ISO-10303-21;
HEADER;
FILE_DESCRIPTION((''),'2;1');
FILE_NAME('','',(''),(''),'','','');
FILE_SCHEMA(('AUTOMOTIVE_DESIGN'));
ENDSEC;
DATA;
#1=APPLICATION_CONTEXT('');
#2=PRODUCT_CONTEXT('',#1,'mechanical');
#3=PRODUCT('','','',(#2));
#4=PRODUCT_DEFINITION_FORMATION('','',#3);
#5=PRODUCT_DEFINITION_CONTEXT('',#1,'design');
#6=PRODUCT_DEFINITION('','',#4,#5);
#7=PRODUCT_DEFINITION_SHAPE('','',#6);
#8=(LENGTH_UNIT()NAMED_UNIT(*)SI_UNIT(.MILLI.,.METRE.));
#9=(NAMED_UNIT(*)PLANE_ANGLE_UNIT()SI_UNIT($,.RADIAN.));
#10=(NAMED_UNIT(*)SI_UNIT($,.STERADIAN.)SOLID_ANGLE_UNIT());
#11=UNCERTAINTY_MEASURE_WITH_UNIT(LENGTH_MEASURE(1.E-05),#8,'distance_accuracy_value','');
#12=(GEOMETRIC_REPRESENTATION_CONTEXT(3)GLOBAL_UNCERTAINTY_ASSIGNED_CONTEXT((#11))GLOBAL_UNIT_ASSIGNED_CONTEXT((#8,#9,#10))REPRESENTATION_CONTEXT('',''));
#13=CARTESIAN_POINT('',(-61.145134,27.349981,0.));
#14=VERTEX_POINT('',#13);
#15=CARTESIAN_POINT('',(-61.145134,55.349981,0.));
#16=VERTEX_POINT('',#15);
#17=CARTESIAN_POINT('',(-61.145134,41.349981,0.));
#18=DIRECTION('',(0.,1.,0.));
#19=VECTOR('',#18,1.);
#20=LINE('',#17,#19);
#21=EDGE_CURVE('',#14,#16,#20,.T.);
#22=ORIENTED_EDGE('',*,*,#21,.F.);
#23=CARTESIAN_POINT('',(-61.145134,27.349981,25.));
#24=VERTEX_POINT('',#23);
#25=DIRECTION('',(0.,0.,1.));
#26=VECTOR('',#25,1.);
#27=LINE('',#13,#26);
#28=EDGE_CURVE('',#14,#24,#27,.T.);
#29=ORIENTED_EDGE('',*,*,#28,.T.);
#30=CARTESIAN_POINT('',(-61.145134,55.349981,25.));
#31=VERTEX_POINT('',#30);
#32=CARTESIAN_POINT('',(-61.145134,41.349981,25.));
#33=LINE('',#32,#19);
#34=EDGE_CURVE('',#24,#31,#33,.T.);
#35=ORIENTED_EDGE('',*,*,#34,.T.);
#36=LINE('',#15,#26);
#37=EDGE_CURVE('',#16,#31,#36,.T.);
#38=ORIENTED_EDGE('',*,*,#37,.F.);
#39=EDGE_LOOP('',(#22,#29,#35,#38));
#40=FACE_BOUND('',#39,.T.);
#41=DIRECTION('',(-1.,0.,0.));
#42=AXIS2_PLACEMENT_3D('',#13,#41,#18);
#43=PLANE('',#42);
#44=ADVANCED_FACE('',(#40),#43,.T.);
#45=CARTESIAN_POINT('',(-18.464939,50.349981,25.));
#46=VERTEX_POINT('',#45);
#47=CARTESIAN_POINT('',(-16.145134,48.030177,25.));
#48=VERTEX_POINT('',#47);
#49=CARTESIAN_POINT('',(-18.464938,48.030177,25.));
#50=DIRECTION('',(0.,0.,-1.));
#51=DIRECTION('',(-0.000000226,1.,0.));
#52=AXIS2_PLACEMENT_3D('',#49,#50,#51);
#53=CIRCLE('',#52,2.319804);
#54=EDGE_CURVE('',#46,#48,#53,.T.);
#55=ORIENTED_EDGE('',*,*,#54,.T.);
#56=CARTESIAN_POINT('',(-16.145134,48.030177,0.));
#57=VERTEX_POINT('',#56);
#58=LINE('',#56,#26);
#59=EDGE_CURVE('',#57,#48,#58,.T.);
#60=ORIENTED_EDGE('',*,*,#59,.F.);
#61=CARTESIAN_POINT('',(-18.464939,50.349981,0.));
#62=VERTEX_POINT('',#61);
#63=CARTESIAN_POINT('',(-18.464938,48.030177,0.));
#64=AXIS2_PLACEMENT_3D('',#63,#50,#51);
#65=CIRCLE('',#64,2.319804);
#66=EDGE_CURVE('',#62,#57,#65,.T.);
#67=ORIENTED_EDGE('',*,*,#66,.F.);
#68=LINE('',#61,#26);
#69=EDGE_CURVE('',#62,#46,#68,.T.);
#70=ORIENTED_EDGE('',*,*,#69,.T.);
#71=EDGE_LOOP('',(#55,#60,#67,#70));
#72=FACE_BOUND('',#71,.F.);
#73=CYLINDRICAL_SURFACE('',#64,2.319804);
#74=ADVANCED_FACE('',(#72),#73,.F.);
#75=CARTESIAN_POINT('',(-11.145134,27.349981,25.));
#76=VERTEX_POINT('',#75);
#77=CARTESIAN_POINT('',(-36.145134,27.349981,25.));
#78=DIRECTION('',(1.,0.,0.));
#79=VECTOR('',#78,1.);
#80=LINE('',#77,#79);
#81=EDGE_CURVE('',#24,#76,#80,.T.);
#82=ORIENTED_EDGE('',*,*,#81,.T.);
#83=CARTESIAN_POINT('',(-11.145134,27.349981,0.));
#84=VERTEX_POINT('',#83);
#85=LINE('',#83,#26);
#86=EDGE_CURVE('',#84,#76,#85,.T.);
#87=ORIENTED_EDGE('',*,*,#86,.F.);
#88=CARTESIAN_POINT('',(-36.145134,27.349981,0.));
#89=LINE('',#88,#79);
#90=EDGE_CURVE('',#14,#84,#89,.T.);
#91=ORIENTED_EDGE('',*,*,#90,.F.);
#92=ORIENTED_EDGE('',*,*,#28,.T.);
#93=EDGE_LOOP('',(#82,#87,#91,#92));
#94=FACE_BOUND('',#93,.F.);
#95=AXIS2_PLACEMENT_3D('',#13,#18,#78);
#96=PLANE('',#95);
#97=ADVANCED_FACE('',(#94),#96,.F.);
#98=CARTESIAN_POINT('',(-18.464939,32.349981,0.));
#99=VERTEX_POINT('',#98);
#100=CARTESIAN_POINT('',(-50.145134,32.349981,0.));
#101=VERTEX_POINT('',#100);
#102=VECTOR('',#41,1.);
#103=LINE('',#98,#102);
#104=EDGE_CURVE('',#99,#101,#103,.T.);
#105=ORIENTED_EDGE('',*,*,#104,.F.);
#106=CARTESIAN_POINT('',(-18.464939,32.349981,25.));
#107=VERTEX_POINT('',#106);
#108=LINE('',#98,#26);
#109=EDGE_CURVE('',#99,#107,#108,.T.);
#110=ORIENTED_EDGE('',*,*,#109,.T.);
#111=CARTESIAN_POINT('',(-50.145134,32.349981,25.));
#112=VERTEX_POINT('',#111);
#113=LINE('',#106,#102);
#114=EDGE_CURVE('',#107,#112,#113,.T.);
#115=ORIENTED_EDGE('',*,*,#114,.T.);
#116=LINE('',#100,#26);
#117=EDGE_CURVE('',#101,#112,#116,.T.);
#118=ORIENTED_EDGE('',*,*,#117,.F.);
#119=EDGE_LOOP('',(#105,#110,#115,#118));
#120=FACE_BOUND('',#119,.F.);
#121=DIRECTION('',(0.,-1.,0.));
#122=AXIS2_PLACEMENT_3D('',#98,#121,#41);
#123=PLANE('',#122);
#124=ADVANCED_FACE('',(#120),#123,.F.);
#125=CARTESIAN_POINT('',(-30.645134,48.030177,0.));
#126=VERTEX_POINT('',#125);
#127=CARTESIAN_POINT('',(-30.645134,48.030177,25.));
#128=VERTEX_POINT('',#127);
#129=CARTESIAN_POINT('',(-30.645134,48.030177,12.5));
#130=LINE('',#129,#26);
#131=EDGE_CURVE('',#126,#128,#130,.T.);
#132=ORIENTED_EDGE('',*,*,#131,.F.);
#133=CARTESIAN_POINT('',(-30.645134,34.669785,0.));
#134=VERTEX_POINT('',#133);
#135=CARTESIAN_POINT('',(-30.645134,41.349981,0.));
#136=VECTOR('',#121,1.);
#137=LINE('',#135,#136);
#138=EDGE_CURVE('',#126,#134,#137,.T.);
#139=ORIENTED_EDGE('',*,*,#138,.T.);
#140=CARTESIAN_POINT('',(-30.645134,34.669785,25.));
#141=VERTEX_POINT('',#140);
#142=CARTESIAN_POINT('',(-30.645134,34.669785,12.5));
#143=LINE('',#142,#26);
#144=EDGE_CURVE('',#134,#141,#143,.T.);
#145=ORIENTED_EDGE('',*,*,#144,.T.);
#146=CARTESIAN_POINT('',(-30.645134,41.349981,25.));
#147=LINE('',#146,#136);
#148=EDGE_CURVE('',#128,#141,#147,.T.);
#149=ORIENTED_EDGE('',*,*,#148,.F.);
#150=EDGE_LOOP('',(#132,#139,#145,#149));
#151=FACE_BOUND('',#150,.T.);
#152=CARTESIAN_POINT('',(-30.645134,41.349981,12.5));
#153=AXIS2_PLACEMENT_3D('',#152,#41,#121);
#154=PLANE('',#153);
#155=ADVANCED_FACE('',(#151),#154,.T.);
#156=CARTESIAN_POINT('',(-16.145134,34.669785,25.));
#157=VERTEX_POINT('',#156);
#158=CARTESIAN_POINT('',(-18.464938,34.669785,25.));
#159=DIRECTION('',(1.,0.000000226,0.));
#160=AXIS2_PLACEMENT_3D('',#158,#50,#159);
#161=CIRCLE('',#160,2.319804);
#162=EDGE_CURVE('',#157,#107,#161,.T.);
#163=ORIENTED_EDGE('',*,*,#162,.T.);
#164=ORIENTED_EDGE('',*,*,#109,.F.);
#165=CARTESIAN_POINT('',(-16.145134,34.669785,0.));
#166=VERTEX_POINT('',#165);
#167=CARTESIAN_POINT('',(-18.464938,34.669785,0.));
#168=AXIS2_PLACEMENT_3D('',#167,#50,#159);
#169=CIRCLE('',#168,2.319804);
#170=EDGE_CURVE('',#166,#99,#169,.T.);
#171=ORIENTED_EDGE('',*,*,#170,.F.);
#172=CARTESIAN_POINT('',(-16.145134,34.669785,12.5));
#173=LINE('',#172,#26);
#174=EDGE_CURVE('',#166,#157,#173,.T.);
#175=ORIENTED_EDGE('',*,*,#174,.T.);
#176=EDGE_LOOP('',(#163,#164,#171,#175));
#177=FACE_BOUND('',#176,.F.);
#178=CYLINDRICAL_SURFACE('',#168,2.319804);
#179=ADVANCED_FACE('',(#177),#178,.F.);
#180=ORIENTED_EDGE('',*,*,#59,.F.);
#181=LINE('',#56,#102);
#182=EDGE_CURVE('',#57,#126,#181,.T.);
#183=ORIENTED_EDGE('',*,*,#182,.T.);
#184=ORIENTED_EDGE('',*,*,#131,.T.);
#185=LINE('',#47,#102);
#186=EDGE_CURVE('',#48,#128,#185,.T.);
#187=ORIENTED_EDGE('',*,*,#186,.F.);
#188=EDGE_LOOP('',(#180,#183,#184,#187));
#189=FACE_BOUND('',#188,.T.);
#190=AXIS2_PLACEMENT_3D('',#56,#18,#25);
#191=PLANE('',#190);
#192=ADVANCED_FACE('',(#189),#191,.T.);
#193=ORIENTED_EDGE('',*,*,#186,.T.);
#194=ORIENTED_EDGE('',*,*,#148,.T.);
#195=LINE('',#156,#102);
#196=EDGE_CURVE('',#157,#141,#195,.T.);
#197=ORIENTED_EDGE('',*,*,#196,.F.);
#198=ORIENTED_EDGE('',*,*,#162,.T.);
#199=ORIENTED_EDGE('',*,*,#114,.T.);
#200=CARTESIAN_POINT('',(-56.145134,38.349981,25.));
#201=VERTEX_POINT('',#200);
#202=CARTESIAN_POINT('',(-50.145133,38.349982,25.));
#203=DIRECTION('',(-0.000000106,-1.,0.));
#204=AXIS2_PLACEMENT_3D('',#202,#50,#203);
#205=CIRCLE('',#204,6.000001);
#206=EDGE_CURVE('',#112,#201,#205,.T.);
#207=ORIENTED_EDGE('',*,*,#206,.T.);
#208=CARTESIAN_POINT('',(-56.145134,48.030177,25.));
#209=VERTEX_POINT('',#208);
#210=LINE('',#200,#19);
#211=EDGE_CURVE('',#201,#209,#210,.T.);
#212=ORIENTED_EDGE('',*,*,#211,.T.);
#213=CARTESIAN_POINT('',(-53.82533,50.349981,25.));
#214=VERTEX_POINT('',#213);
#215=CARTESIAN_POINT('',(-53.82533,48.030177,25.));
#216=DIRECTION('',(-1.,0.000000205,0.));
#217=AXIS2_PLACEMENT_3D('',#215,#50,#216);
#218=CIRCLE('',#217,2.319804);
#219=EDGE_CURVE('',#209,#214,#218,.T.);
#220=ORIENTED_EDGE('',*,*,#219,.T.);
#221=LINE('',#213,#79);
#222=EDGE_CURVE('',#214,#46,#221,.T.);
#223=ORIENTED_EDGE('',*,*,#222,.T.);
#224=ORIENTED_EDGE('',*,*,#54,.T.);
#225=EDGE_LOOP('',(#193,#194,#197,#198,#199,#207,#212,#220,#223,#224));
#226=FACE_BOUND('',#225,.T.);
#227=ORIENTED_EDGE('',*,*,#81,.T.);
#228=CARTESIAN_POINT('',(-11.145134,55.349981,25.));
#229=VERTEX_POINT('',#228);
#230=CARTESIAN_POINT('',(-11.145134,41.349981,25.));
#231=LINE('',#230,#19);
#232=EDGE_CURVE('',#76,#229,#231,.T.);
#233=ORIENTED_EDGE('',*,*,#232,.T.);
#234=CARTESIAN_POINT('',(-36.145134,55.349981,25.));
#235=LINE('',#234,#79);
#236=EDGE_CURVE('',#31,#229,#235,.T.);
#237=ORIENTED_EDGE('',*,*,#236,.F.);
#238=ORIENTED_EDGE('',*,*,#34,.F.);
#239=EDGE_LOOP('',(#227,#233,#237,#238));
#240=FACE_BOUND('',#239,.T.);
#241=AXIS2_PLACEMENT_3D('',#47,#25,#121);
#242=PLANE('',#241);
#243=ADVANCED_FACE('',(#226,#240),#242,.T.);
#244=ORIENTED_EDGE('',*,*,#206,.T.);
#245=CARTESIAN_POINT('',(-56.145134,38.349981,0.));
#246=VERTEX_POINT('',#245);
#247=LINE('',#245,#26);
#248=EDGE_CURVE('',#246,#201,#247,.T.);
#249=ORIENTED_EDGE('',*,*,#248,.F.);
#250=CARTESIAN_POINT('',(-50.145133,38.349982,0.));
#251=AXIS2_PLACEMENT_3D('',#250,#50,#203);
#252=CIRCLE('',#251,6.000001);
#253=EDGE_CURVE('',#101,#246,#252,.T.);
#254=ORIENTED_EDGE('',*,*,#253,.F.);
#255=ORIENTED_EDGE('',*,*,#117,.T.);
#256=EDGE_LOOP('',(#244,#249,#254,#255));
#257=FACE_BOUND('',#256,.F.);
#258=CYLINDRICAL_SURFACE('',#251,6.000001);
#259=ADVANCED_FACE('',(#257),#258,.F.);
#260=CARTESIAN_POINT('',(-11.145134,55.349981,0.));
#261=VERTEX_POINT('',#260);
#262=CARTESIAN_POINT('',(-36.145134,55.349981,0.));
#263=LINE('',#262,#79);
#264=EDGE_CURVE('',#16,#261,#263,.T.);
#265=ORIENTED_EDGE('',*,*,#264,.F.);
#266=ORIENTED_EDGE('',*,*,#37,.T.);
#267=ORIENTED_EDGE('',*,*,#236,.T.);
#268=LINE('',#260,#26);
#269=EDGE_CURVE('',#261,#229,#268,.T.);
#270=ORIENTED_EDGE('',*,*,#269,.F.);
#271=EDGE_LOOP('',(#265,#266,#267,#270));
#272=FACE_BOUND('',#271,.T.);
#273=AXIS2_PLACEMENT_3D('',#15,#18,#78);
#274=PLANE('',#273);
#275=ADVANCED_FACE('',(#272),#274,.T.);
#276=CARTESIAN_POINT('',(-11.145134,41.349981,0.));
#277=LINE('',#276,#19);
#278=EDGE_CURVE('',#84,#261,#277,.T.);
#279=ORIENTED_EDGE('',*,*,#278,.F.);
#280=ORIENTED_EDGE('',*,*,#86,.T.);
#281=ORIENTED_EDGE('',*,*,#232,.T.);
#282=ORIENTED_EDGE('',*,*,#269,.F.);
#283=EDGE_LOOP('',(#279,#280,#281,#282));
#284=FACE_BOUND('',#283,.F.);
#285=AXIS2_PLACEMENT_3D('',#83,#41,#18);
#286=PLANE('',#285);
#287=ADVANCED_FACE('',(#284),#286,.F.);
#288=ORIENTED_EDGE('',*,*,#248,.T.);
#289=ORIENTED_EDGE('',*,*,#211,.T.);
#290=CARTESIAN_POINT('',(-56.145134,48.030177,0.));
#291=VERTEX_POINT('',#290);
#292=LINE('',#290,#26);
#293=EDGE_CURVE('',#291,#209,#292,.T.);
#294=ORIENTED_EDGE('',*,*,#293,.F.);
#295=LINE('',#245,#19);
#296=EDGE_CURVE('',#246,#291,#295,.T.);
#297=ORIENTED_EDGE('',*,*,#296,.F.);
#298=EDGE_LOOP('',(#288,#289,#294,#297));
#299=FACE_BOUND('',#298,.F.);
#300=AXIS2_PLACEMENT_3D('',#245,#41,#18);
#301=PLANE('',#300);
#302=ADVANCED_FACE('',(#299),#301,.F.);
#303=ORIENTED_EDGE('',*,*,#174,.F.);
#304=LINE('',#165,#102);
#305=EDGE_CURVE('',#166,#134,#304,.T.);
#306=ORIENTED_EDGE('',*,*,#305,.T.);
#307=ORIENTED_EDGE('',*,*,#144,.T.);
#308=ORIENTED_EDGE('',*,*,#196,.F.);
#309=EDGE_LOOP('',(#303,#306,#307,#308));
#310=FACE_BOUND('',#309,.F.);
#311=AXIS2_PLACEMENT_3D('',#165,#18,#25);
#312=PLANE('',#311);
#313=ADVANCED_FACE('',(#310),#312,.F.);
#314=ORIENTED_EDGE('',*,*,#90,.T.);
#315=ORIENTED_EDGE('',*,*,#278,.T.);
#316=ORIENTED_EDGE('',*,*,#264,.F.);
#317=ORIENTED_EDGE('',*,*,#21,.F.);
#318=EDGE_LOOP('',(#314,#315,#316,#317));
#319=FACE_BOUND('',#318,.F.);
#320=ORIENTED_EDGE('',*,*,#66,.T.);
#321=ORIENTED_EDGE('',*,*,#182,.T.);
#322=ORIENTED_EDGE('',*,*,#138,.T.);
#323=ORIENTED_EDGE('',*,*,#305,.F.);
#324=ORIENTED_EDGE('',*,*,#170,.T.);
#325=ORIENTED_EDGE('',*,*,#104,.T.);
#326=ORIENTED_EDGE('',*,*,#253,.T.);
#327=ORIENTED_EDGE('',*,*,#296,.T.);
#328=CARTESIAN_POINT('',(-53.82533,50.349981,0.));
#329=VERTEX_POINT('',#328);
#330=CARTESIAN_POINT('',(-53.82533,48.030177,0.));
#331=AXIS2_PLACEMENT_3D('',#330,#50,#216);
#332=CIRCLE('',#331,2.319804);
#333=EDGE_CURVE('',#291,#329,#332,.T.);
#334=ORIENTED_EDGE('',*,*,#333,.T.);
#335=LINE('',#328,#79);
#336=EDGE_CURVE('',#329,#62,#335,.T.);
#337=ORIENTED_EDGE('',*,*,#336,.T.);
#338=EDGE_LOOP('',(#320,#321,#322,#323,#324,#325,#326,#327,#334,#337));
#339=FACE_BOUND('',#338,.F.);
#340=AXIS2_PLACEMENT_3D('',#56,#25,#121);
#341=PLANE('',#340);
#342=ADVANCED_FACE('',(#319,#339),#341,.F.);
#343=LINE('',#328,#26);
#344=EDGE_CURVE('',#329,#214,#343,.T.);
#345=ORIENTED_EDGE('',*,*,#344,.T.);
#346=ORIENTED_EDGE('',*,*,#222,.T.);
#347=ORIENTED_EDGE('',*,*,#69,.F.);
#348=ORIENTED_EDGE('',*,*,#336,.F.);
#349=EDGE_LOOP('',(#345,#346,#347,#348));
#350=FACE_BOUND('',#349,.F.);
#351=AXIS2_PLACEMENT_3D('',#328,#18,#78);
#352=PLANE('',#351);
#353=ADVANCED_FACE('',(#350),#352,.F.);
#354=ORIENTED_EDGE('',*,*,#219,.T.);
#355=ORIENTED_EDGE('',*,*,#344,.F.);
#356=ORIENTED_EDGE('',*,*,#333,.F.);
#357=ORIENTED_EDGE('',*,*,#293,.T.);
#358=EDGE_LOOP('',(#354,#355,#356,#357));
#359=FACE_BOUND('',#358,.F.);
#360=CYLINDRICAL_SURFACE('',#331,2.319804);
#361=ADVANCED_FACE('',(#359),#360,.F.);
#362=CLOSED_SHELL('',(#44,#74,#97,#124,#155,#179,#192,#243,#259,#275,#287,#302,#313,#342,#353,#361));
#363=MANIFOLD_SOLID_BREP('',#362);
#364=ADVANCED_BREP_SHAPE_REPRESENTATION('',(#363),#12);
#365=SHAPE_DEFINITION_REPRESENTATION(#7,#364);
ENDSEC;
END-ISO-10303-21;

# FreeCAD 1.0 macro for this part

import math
import FreeCAD as App
import Part
import Sketcher

V = App.Vector
Q = App.Units.Quantity


def add_polygon(sketch, points):
    """Adds a closed chain of lines whose ends are joined by coincident constraints."""
    first, n = sketch.GeometryCount, len(points)
    for a, b in zip(points, points[1:] + points[:1]):
        sketch.addGeometry(Part.LineSegment(App.Vector(*a, 0), App.Vector(*b, 0)), False)
    for i in range(n):
        sketch.addConstraint(Sketcher.Constraint("Coincident", first + i, 2, first + (i + 1) % n, 1))

doc = App.newDocument("Part")
params = doc.addObject("Spreadsheet::Sheet", "Params")
for row, (alias, value) in enumerate([
    ("sketch1_radius", "6.000001 mm"),
    ("sketch1_width", "50 mm"),
    ("sketch1_height", "28 mm"),
    ("pad1_length", "25 mm"),
    ("sketch2_height", "25 mm"),
    ("pad2_length", "14.5 mm"),
], start=1):
    params.set(f"A{row}", alias)
    params.set(f"B{row}", "=" + value)
    params.setAlias(f"B{row}", alias)

body = doc.addObject("PartDesign::Body", "Body")

# Sketch on XY plane
sketch1 = body.newObject("Sketcher::SketchObject", "Sketch")
sketch1.AttachmentSupport = (doc.getObject("XY_Plane"), [""])
sketch1.MapMode = "FlatFace"
add_polygon(sketch1, [(-61.1, 55.3), (-61.1, 27.3), (-11.1, 27.3), (-11.1, 55.3)])  # lines 0-3
sketch1.addGeometry(Part.LineSegment(V(-56.1, 38.3, 0), V(-56.1, 48, 0)), False)  # 4
sketch1.addGeometry(Part.ArcOfCircle(Part.Circle(V(-53.8, 48, 0), V(0, 0, 1), 2.3), math.radians(90), math.radians(180)), False)  # 5
sketch1.addGeometry(Part.LineSegment(V(-53.8, 50.3, 0), V(-18.5, 50.3, 0)), False)  # 6
sketch1.addGeometry(Part.ArcOfCircle(Part.Circle(V(-18.5, 48, 0), V(0, 0, 1), 2.3), math.radians(0), math.radians(90)), False)  # 7
sketch1.addGeometry(Part.LineSegment(V(-16.1, 48, 0), V(-16.1, 34.7, 0)), False)  # 8
sketch1.addGeometry(Part.ArcOfCircle(Part.Circle(V(-18.5, 34.7, 0), V(0, 0, 1), 2.3), math.radians(-90), math.radians(0)), False)  # 9
sketch1.addGeometry(Part.LineSegment(V(-18.5, 32.3, 0), V(-50.1, 32.3, 0)), False)  # 10
sketch1.addGeometry(Part.ArcOfCircle(Part.Circle(V(-50.1, 38.3, 0), V(0, 0, 1), 6), math.radians(-180), math.radians(-90)), False)  # 11
sketch1.addConstraint([
    Sketcher.Constraint("Tangent", 4, 2, 5, 2),
    Sketcher.Constraint("Tangent", 5, 1, 6, 1),
    Sketcher.Constraint("Tangent", 6, 2, 7, 2),
    Sketcher.Constraint("Tangent", 7, 1, 8, 1),
    Sketcher.Constraint("Tangent", 8, 2, 9, 2),
    Sketcher.Constraint("Tangent", 9, 1, 10, 1),
    Sketcher.Constraint("Tangent", 10, 2, 11, 2),
    Sketcher.Constraint("Tangent", 11, 1, 4, 1),
    Sketcher.Constraint("Vertical", 0),
    Sketcher.Constraint("Horizontal", 1),
    Sketcher.Constraint("Vertical", 2),
    Sketcher.Constraint("Horizontal", 3),
    Sketcher.Constraint("Vertical", 4),
    Sketcher.Constraint("Horizontal", 6),
    Sketcher.Constraint("Vertical", 8),
    Sketcher.Constraint("Horizontal", 10),
    Sketcher.Constraint("Equal", 5, 7),
    Sketcher.Constraint("Equal", 7, 9),
    Sketcher.Constraint("Radius", 11, Q("6.000001 mm")),
    Sketcher.Constraint("DistanceX", 1, 1, 1, 2, Q("50 mm")),
    Sketcher.Constraint("DistanceY", 0, 2, 0, 1, Q("28 mm")),
    Sketcher.Constraint("DistanceX", 0, 2, 11, 3, Q("11.000001 mm")),
    Sketcher.Constraint("DistanceY", 0, 2, 11, 3, Q("11.000001 mm")),
    Sketcher.Constraint("DistanceY", 5, 1, 3, 2, Q("5 mm")),
    Sketcher.Constraint("DistanceX", 7, 1, 2, 2, Q("5 mm")),
    Sketcher.Constraint("Radius", 5, Q("2.319804 mm")),
    Sketcher.Constraint("DistanceX", 5, 3, -1, 1, Q("53.82533 mm")),
    Sketcher.Constraint("DistanceY", -1, 1, 11, 3, Q("38.349982 mm")),
])
sketch1.setExpression("Constraints[22]", "Params.sketch1_radius")
sketch1.setExpression("Constraints[23]", "Params.sketch1_width")
sketch1.setExpression("Constraints[24]", "Params.sketch1_height")
pad1 = body.newObject("PartDesign::Pad", "Pad")
pad1.Profile = sketch1
pad1.setExpression("Length", "Params.pad1_length")

# Sketch on YZ plane
sketch2 = body.newObject("Sketcher::SketchObject", "Sketch001")
sketch2.AttachmentSupport = (doc.getObject("YZ_Plane"), [""])
sketch2.MapMode = "FlatFace"
sketch2.AttachmentOffset = App.Placement(V(0, 0, -16.145134), App.Rotation())
add_polygon(sketch2, [(48, 25), (48, 0), (35, 0), (35, 25)])  # lines 0-3
sketch2.addConstraint([
    Sketcher.Constraint("Vertical", 0),
    Sketcher.Constraint("Horizontal", 1),
    Sketcher.Constraint("Vertical", 2),
    Sketcher.Constraint("Horizontal", 3),
    Sketcher.Constraint("PointOnObject", 0, 2, -1),
    Sketcher.Constraint("DistanceY", 0, 2, 0, 1, Q("25 mm")),
    Sketcher.Constraint("DistanceX", 1, 2, 1, 1, Q("13.360392 mm")),
    Sketcher.Constraint("DistanceX", -1, 1, 0, 2, Q("48.030177 mm")),
])
sketch2.setExpression("Constraints[9]", "Params.sketch2_height")
pad2 = body.newObject("PartDesign::Pad", "Pad001")
pad2.Profile = sketch2
pad2.setExpression("Length", "Params.pad2_length")
pad2.Reversed = True

doc.recompute()
